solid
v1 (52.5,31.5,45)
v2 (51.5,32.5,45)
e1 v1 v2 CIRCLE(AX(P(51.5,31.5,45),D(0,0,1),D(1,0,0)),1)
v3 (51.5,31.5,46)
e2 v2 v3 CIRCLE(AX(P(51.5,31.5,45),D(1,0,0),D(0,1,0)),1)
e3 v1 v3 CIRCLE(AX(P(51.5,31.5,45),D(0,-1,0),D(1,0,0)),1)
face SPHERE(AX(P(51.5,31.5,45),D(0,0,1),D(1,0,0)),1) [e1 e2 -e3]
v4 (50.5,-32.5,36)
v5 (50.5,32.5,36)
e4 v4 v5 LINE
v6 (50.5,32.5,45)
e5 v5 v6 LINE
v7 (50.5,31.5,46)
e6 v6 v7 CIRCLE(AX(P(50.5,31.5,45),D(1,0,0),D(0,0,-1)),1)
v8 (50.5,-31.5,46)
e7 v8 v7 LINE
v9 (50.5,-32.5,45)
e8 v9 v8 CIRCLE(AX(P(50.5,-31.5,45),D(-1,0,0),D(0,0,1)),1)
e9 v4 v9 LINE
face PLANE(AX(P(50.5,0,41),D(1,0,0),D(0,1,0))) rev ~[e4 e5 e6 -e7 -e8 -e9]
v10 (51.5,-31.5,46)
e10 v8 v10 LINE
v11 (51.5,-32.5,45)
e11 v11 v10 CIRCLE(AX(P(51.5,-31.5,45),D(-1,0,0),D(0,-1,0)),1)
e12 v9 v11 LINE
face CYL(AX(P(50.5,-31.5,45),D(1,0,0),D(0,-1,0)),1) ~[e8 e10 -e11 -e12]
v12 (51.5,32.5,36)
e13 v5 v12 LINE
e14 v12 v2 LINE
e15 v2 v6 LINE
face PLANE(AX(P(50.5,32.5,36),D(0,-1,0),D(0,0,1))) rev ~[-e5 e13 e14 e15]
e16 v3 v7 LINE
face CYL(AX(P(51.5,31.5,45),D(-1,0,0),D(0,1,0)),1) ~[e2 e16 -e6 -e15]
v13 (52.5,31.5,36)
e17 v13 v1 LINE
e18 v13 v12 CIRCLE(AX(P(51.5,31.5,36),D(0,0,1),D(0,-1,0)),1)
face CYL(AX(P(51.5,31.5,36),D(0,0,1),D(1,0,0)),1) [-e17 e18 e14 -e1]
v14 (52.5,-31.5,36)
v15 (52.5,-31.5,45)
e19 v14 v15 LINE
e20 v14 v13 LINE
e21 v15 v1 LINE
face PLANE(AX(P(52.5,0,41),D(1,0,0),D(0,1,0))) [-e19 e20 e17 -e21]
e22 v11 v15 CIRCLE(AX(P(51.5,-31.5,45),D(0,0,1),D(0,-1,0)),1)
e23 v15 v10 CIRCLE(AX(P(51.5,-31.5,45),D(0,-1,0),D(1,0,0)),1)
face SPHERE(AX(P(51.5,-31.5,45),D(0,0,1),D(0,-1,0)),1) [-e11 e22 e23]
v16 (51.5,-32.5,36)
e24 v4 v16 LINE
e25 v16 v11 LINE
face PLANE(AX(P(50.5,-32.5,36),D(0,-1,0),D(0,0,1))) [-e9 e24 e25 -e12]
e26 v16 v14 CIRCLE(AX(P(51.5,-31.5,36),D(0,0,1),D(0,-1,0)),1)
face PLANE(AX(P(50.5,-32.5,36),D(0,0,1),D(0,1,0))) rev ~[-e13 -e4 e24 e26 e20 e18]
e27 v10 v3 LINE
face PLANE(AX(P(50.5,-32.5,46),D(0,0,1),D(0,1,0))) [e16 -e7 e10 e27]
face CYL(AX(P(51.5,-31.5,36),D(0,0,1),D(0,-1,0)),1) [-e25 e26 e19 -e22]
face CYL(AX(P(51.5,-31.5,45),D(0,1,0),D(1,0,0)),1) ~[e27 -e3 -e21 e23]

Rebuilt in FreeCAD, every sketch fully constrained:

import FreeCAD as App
import Part
import Sketcher


def edges_at(feature, points):
    """Names of the edges that pass closest to the given points."""
    edges = feature.Shape.Edges
    near = lambda p: min(range(len(edges)), key=lambda i: edges[i].distToShape(Part.Vertex(*p))[0])
    return sorted({f"Edge{near(p) + 1}" for p in points})


def add_polygon(sketch, points):
    """Adds a closed chain of lines whose ends are joined by coincident constraints."""
    first, n = sketch.GeometryCount, len(points)
    for a, b in zip(points, points[1:] + points[:1]):
        sketch.addGeometry(Part.LineSegment(App.Vector(*a, 0), App.Vector(*b, 0)), False)
    for i in range(n):
        sketch.addConstraint(Sketcher.Constraint("Coincident", first + i, 2, first + (i + 1) % n, 1))

doc = App.newDocument("Part")
params = doc.addObject("Spreadsheet::Sheet", "Params")
for row, (alias, value) in enumerate([
    ("sketch1_width", "65 mm"),
    ("sketch1_height", "10 mm"),
    ("pad1_length", "2 mm"),
    ("fillet_radius", "1 mm"),
    ("fillet2_radius", "1 mm"),
    ("fillet3_radius", "1 mm"),
], start=1):
    params.set(f"A{row}", alias)
    params.set(f"B{row}", "=" + value)
    params.setAlias(f"B{row}", alias)

body = doc.addObject("PartDesign::Body", "Body")

# Sketch on YZ plane
sketch1 = body.newObject("Sketcher::SketchObject", "Sketch")
sketch1.AttachmentSupport = (doc.getObject("YZ_Plane"), [""])
sketch1.MapMode = "FlatFace"
add_polygon(sketch1, [(-32, 10), (-32, 0), (32, 0), (32, 10)])  # lines 0-3
sketch1.addConstraint([
    Sketcher.Constraint("Vertical", 0),
    Sketcher.Constraint("Horizontal", 1),
    Sketcher.Constraint("Vertical", 2),
    Sketcher.Constraint("Horizontal", 3),
    Sketcher.Constraint("Symmetric", 0, 2, 1, 2, -1, 1),
    Sketcher.Constraint("DistanceX", 1, 1, 1, 2, 65.0),
    Sketcher.Constraint("DistanceY", 0, 2, 0, 1, 10.0),
])
sketch1.setExpression("Constraints[9]", "Params.sketch1_width")
sketch1.setExpression("Constraints[10]", "Params.sketch1_height")
pad1 = body.newObject("PartDesign::Pad", "Pad")
pad1.Profile = sketch1
pad1.setExpression("Length", "Params.pad1_length")
doc.recompute()

fillet = body.newObject("PartDesign::Fillet", "Fillet")
fillet.Base = (pad1, edges_at(pad1, [(2, -32.5, 5)]))
fillet.setExpression("Radius", "Params.fillet_radius")
doc.recompute()

fillet2 = body.newObject("PartDesign::Fillet", "Fillet001")
fillet2.Base = (fillet, edges_at(fillet, [(2, 32.5, 5)]))
fillet2.setExpression("Radius", "Params.fillet2_radius")
doc.recompute()

fillet3 = body.newObject("PartDesign::Fillet", "Fillet002")
fillet3.Base = (fillet2, edges_at(fillet2, [(2, 0, 10)]))
fillet3.setExpression("Radius", "Params.fillet3_radius")
body2 = doc.addObject("PartDesign::Body", "Body001")
doc.recompute()

body.Placement = App.Placement(App.Vector(50.5, 0, 36), App.Rotation(App.Vector(0, 0, 1), 0))
boolean = body2.newObject("PartDesign::Boolean", "Boolean")
boolean.Type = "Fuse"
boolean.addObjects([body])

doc.recompute()
